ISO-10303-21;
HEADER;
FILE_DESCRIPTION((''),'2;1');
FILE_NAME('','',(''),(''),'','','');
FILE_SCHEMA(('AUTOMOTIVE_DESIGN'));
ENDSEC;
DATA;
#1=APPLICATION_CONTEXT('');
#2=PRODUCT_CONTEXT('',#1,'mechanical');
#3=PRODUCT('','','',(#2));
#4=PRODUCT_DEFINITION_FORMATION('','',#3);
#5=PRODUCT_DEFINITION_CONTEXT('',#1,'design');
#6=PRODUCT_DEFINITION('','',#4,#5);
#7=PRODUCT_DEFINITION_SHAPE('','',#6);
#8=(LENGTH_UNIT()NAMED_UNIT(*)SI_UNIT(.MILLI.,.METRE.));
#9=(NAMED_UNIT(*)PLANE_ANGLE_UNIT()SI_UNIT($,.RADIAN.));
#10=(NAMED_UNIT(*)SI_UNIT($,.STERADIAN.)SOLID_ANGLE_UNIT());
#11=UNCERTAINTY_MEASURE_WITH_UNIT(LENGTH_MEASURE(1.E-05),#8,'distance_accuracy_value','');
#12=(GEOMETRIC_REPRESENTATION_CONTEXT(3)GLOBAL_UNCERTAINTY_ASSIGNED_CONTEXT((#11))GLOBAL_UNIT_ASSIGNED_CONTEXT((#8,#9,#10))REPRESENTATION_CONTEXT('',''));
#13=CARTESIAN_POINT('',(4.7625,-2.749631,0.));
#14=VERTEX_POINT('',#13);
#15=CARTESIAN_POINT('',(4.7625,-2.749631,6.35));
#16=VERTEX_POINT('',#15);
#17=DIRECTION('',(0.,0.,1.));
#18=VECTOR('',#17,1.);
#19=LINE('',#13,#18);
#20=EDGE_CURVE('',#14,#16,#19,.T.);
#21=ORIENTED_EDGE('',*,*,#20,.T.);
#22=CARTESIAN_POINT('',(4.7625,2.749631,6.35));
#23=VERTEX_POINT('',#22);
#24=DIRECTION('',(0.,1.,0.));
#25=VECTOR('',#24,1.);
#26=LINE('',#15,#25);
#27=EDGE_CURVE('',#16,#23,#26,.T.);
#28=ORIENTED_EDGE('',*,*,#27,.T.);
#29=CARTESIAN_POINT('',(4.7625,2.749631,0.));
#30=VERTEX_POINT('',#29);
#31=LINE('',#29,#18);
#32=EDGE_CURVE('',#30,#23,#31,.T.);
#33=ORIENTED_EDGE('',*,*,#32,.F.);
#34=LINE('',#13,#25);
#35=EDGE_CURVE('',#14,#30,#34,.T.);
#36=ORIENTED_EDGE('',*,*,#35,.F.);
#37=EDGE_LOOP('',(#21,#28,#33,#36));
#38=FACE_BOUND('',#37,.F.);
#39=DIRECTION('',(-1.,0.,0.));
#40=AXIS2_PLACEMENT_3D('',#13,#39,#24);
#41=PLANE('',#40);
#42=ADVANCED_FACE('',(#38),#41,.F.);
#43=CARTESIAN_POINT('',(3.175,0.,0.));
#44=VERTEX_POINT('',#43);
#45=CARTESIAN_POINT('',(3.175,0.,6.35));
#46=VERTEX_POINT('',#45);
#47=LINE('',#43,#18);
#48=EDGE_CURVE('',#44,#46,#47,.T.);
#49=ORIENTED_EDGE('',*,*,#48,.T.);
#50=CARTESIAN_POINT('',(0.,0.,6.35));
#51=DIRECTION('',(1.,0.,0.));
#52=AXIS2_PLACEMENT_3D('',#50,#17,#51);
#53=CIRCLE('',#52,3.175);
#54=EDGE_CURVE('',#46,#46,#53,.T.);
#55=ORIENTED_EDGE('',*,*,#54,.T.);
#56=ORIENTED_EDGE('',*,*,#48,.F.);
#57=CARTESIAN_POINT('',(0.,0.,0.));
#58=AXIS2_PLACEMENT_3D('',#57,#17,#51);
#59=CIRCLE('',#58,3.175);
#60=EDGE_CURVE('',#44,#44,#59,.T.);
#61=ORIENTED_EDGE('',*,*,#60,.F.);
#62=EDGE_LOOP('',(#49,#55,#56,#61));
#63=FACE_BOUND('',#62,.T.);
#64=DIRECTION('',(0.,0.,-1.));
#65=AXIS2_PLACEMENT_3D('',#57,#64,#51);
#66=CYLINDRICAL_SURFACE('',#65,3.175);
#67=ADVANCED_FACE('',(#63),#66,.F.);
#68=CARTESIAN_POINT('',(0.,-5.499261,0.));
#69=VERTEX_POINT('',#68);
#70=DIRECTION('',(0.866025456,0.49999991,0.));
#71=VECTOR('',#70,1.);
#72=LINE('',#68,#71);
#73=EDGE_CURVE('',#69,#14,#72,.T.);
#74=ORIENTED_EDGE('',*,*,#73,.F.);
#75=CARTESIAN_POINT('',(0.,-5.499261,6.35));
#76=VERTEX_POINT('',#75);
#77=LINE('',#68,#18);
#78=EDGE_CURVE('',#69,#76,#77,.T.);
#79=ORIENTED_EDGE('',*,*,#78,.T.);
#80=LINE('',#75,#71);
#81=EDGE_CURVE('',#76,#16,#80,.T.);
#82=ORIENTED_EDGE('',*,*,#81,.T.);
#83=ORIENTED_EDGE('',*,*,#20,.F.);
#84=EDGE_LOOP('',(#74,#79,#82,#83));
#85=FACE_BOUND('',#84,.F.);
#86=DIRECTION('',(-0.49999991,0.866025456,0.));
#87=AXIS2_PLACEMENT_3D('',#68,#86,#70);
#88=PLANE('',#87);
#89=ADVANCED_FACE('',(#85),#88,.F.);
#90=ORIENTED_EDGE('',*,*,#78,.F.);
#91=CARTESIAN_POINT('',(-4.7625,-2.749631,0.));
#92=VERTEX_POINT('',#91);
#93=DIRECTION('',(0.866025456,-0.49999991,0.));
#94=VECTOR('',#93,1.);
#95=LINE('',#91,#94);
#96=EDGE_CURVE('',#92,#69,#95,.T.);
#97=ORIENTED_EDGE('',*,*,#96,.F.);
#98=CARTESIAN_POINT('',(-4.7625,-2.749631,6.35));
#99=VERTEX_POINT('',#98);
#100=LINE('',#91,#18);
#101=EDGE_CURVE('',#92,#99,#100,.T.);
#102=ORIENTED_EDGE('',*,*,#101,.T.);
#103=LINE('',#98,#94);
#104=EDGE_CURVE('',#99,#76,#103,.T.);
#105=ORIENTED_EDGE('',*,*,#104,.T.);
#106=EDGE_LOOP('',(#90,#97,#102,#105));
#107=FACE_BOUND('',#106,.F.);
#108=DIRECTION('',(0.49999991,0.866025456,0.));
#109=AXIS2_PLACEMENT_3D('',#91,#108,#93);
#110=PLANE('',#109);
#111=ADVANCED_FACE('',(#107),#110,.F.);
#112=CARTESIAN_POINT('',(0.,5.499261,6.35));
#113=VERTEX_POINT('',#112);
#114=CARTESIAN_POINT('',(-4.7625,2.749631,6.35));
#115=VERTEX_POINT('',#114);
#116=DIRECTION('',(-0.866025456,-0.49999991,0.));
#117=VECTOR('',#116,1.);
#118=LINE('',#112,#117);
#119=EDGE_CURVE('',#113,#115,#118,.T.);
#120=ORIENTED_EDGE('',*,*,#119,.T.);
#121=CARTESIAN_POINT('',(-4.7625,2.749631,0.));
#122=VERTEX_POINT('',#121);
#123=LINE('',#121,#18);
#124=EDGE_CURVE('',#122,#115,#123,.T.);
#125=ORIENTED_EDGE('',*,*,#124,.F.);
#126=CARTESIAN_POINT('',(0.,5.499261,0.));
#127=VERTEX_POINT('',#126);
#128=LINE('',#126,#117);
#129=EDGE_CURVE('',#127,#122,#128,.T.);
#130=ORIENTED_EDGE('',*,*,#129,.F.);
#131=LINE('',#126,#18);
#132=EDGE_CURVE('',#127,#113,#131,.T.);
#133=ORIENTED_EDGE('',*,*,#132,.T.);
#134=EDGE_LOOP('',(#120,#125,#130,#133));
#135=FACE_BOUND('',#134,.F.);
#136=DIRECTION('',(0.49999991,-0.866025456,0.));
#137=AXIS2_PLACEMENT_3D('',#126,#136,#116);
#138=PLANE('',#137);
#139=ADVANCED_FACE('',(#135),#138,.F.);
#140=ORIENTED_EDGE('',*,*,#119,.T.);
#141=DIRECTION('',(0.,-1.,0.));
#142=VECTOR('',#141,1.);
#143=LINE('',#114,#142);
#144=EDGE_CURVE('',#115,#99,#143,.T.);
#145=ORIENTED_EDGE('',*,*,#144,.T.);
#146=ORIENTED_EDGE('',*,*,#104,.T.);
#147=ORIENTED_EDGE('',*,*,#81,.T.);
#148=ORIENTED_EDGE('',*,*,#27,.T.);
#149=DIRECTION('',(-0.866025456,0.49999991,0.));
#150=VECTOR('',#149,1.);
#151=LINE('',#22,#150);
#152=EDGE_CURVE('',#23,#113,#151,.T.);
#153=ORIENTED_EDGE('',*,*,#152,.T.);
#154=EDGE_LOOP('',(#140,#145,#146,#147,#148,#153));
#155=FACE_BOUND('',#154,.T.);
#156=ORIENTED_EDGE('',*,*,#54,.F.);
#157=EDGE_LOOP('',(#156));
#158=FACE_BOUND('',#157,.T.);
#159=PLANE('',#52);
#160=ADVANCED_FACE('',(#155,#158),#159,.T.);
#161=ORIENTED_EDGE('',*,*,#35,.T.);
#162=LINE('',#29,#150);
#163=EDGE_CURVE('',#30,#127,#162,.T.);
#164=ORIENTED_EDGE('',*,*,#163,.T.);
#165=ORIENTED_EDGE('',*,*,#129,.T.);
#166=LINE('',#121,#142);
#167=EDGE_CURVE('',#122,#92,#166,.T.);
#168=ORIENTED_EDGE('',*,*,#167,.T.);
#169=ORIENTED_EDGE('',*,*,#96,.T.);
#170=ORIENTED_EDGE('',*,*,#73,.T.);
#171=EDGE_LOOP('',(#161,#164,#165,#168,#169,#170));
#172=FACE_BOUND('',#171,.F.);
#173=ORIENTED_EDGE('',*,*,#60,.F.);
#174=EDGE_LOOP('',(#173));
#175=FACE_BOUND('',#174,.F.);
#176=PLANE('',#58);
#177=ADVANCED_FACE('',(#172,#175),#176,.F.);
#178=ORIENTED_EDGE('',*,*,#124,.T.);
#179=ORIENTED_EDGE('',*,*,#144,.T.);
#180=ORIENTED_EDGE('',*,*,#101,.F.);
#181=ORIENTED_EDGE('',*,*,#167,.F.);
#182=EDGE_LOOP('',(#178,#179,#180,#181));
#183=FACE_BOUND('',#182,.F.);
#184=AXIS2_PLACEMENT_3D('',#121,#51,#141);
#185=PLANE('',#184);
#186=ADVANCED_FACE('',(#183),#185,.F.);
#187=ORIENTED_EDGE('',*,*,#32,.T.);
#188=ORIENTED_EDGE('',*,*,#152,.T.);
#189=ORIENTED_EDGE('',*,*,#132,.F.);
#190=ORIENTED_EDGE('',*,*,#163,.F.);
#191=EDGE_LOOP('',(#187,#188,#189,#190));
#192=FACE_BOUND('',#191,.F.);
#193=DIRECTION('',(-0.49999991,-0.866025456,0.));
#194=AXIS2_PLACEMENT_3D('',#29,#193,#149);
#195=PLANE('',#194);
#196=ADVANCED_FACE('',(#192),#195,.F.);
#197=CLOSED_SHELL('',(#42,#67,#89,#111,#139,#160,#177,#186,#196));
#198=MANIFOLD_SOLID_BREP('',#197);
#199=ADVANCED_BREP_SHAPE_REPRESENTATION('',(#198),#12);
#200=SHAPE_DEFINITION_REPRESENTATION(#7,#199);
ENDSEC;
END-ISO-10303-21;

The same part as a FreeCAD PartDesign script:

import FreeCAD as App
import Part
import Sketcher
Q = App.Units.Quantity

doc = App.newDocument("Part")
body = doc.addObject("PartDesign::Body", "Body")

# Sketch on XY plane
sketch1 = body.newObject("Sketcher::SketchObject", "Sketch")
sketch1.AttachmentSupport = (doc.getObject("XY_Plane"), [""])
sketch1.MapMode = "FlatFace"
sketch1.addGeometry([
    Part.LineSegment(App.Vector(4.7625, -2.749631, 0), App.Vector(4.7625, 2.749631, 0)),  # 0
    Part.LineSegment(App.Vector(4.7625, 2.749631, 0), App.Vector(0, 5.499261, 0)),  # 1
    Part.LineSegment(App.Vector(0, 5.499261, 0), App.Vector(-4.7625, 2.749631, 0)),  # 2
    Part.LineSegment(App.Vector(-4.7625, 2.749631, 0), App.Vector(-4.7625, -2.749631, 0)),  # 3
    Part.LineSegment(App.Vector(-4.7625, -2.749631, 0), App.Vector(0, -5.499261, 0)),  # 4
    Part.LineSegment(App.Vector(0, -5.499261, 0), App.Vector(4.7625, -2.749631, 0)),  # 5
    Part.Circle(App.Vector(0, 0, 0), App.Vector(0, 0, 1), 3.175),  # 6
], False)
sketch1.addConstraint([
    Sketcher.Constraint("Coincident", 0, 2, 1, 1),
    Sketcher.Constraint("Coincident", 1, 2, 2, 1),
    Sketcher.Constraint("Coincident", 2, 2, 3, 1),
    Sketcher.Constraint("Coincident", 3, 2, 4, 1),
    Sketcher.Constraint("Coincident", 4, 2, 5, 1),
    Sketcher.Constraint("Coincident", 5, 2, 0, 1),
    Sketcher.Constraint("Vertical", 0),
    Sketcher.Constraint("Vertical", 3),
    Sketcher.Constraint("Coincident", 6, 3, -1, 1),
    Sketcher.Constraint("Symmetric", 0, 2, 3, 2, -1, 1),
    Sketcher.Constraint("Symmetric", 1, 2, 4, 2, -1, 1),
    Sketcher.Constraint("PointOnObject", 1, 2, -2),
    Sketcher.Constraint("Parallel", 2, 5),
    Sketcher.Constraint("Horizontal", 0, 2, 2, 2),
    Sketcher.Constraint("Diameter", 6, Q("0.25 in")),
    Sketcher.Constraint("Angle", 1, Q("150.000006 deg")),
    Sketcher.Constraint("DistanceX", -1, 1, 0, 2, Q("0.1875 in")),
    Sketcher.Constraint("DistanceY", 0, 1, 0, 2, Q("5.499262 mm")),
])
pad1 = body.newObject("PartDesign::Pad", "Pad")
pad1.Profile = sketch1
pad1.Length = Q("0.25 in")

doc.recompute()
